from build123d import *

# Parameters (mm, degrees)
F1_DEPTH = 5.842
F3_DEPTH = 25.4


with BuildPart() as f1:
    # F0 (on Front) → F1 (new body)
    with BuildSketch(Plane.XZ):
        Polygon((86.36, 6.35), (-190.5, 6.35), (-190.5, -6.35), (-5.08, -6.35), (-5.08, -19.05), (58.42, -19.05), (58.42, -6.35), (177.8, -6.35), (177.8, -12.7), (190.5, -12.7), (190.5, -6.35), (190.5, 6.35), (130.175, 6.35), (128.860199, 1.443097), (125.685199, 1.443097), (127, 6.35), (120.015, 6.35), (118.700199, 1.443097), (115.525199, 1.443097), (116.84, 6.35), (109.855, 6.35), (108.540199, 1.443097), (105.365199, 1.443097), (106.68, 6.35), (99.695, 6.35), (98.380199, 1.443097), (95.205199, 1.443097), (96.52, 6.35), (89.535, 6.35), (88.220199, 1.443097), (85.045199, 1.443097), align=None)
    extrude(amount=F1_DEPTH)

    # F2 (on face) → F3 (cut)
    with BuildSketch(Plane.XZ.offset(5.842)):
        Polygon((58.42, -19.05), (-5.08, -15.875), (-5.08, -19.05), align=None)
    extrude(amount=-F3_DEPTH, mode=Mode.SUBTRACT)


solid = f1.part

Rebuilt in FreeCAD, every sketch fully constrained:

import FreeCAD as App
import Part
import Sketcher
from FreeCAD import Vector
Q = App.Units.Quantity


def add_polygon(sketch, points):
    """Adds a closed chain of lines whose ends are joined by coincident constraints."""
    first, n = sketch.GeometryCount, len(points)
    for a, b in zip(points, points[1:] + points[:1]):
        sketch.addGeometry(Part.LineSegment(App.Vector(*a, 0), App.Vector(*b, 0)), False)
    for i in range(n):
        sketch.addConstraint(Sketcher.Constraint("Coincident", first + i, 2, first + (i + 1) % n, 1))

doc = App.newDocument("Part")
body = doc.addObject("PartDesign::Body", "Body")

sketch1 = doc.addObject("Sketcher::SketchObject", "Sketch")
body.addObject(sketch1)
sketch1.AttachmentSupport = (doc.XZ_Plane, [""])
sketch1.MapMode = "FlatFace"
add_polygon(sketch1, [(86.4, 6.3), (-190.5, 6.3), (-190.5, -6.3), (-5.1, -6.3), (-5.1, -19.1), (58.4, -19.1), (58.4, -6.3), (177.8, -6.3), (177.8, -12.7), (190.5, -12.7), (190.5, 6.3), (130.2, 6.3), (128.9, 1.4), (125.7, 1.4), (127, 6.3), (120, 6.3), (118.7, 1.4), (115.5, 1.4), (116.8, 6.3), (109.9, 6.3), (108.5, 1.4), (105.4, 1.4), (106.7, 6.3), (99.7, 6.3), (98.4, 1.4), (95.2, 1.4), (96.5, 6.3), (89.5, 6.3), (88.2, 1.4), (85, 1.4)])
sketch1.addConstraint([
    Sketcher.Constraint("Horizontal", 0),
    Sketcher.Constraint("Vertical", 1),
    Sketcher.Constraint("Horizontal", 2),
    Sketcher.Constraint("Vertical", 3),
    Sketcher.Constraint("Horizontal", 4),
    Sketcher.Constraint("Vertical", 5),
    Sketcher.Constraint("Horizontal", 6),
    Sketcher.Constraint("Vertical", 7),
    Sketcher.Constraint("Horizontal", 8),
    Sketcher.Constraint("Vertical", 9),
    Sketcher.Constraint("Horizontal", 10),
    Sketcher.Constraint("Horizontal", 12),
    Sketcher.Constraint("Horizontal", 14),
    Sketcher.Constraint("Horizontal", 16),
    Sketcher.Constraint("Horizontal", 18),
    Sketcher.Constraint("Horizontal", 20),
    Sketcher.Constraint("Horizontal", 22),
    Sketcher.Constraint("Horizontal", 24),
    Sketcher.Constraint("Horizontal", 26),
    Sketcher.Constraint("Horizontal", 28),
    Sketcher.Constraint("Symmetric", 1, 2, 9, 2, -1, 1),
    Sketcher.Constraint("Parallel", 11, 13),
    Sketcher.Constraint("Parallel", 13, 15),
    Sketcher.Constraint("Parallel", 15, 17),
    Sketcher.Constraint("Parallel", 17, 19),
    Sketcher.Constraint("Parallel", 19, 21),
    Sketcher.Constraint("Parallel", 21, 23),
    Sketcher.Constraint("Parallel", 23, 25),
    Sketcher.Constraint("Parallel", 25, 27),
    Sketcher.Constraint("Parallel", 27, 29),
    Sketcher.Constraint("Horizontal", 2, 2, 5, 2),
    Sketcher.Constraint("Horizontal", 0, 2, 9, 2),
    Sketcher.Constraint("Horizontal", 10, 2, 13, 2),
    Sketcher.Constraint("Horizontal", 12, 2, 15, 2),
    Sketcher.Constraint("Horizontal", 14, 2, 17, 2),
    Sketcher.Constraint("Horizontal", 16, 2, 19, 2),
    Sketcher.Constraint("Horizontal", 18, 2, 21, 2),
    Sketcher.Constraint("Horizontal", 20, 2, 23, 2),
    Sketcher.Constraint("Horizontal", 22, 2, 25, 2),
    Sketcher.Constraint("Horizontal", 24, 2, 27, 2),
    Sketcher.Constraint("Equal", 12, 16),
    Sketcher.Constraint("Equal", 14, 18),
    Sketcher.Constraint("Equal", 16, 20),
    Sketcher.Constraint("Equal", 18, 22),
    Sketcher.Constraint("Equal", 20, 24),
    Sketcher.Constraint("Equal", 22, 26),
    Sketcher.Constraint("Equal", 24, 28),
    Sketcher.Constraint("Equal", 8, 1),
    Sketcher.Constraint("Equal", 1, 3),
    Sketcher.Constraint("DistanceX", 0, 2, 0, 1, Q("10.9 in")),
    Sketcher.Constraint("DistanceX", 2, 1, 2, 2, Q("7.3 in")),
    Sketcher.Constraint("DistanceX", 4, 1, 4, 2, Q("2.5 in")),
    Sketcher.Constraint("DistanceX", 6, 1, 6, 2, Q("4.7 in")),
    Sketcher.Constraint("DistanceX", 8, 1, 8, 2, Q("0.5 in")),
    Sketcher.Constraint("DistanceX", -1, 1, 13, 2, Q("5 in")),
    Sketcher.Constraint("Angle", 11, Q("-105.000003 deg")),
    Sketcher.Constraint("Distance", 11, Q("0.2 in")),
    Sketcher.Constraint("DistanceY", 7, 2, 7, 1, Q("0.25 in")),
    Sketcher.Constraint("DistanceX", 10, 2, 10, 1, Q("2.375 in")),
])
pad1 = doc.addObject("PartDesign::Pad", "Pad")
body.addObject(pad1)
pad1.Profile = sketch1
pad1.Length = Q("0.23 in")

sketch2 = doc.addObject("Sketcher::SketchObject", "Sketch001")
body.addObject(sketch2)
sketch2.AttachmentSupport = (doc.XZ_Plane, [""])
sketch2.MapMode = "FlatFace"
sketch2.AttachmentOffset = App.Placement(Vector(0, 0, 0.23 * 25.4), App.Rotation())
add_polygon(sketch2, [(58.4, -19.1), (-5.1, -15.9), (-5.1, -19.1)])
sketch2.addConstraint([
    Sketcher.Constraint("Vertical", 1),
    Sketcher.Constraint("Horizontal", 2),
    Sketcher.Constraint("DistanceX", 2, 1, 2, 2, Q("2.5 in")),
    Sketcher.Constraint("DistanceX", 0, 2, -1, 1, Q("0.2 in")),
    Sketcher.Constraint("DistanceY", 1, 2, 1, 1, Q("0.125 in")),
    Sketcher.Constraint("DistanceY", 1, 2, -1, 1, Q("0.75 in")),
])
pocket1 = doc.addObject("PartDesign::Pocket", "Pocket")
body.addObject(pocket1)
pocket1.Profile = sketch2
pocket1.Length = Q("1 in")

doc.recompute()
